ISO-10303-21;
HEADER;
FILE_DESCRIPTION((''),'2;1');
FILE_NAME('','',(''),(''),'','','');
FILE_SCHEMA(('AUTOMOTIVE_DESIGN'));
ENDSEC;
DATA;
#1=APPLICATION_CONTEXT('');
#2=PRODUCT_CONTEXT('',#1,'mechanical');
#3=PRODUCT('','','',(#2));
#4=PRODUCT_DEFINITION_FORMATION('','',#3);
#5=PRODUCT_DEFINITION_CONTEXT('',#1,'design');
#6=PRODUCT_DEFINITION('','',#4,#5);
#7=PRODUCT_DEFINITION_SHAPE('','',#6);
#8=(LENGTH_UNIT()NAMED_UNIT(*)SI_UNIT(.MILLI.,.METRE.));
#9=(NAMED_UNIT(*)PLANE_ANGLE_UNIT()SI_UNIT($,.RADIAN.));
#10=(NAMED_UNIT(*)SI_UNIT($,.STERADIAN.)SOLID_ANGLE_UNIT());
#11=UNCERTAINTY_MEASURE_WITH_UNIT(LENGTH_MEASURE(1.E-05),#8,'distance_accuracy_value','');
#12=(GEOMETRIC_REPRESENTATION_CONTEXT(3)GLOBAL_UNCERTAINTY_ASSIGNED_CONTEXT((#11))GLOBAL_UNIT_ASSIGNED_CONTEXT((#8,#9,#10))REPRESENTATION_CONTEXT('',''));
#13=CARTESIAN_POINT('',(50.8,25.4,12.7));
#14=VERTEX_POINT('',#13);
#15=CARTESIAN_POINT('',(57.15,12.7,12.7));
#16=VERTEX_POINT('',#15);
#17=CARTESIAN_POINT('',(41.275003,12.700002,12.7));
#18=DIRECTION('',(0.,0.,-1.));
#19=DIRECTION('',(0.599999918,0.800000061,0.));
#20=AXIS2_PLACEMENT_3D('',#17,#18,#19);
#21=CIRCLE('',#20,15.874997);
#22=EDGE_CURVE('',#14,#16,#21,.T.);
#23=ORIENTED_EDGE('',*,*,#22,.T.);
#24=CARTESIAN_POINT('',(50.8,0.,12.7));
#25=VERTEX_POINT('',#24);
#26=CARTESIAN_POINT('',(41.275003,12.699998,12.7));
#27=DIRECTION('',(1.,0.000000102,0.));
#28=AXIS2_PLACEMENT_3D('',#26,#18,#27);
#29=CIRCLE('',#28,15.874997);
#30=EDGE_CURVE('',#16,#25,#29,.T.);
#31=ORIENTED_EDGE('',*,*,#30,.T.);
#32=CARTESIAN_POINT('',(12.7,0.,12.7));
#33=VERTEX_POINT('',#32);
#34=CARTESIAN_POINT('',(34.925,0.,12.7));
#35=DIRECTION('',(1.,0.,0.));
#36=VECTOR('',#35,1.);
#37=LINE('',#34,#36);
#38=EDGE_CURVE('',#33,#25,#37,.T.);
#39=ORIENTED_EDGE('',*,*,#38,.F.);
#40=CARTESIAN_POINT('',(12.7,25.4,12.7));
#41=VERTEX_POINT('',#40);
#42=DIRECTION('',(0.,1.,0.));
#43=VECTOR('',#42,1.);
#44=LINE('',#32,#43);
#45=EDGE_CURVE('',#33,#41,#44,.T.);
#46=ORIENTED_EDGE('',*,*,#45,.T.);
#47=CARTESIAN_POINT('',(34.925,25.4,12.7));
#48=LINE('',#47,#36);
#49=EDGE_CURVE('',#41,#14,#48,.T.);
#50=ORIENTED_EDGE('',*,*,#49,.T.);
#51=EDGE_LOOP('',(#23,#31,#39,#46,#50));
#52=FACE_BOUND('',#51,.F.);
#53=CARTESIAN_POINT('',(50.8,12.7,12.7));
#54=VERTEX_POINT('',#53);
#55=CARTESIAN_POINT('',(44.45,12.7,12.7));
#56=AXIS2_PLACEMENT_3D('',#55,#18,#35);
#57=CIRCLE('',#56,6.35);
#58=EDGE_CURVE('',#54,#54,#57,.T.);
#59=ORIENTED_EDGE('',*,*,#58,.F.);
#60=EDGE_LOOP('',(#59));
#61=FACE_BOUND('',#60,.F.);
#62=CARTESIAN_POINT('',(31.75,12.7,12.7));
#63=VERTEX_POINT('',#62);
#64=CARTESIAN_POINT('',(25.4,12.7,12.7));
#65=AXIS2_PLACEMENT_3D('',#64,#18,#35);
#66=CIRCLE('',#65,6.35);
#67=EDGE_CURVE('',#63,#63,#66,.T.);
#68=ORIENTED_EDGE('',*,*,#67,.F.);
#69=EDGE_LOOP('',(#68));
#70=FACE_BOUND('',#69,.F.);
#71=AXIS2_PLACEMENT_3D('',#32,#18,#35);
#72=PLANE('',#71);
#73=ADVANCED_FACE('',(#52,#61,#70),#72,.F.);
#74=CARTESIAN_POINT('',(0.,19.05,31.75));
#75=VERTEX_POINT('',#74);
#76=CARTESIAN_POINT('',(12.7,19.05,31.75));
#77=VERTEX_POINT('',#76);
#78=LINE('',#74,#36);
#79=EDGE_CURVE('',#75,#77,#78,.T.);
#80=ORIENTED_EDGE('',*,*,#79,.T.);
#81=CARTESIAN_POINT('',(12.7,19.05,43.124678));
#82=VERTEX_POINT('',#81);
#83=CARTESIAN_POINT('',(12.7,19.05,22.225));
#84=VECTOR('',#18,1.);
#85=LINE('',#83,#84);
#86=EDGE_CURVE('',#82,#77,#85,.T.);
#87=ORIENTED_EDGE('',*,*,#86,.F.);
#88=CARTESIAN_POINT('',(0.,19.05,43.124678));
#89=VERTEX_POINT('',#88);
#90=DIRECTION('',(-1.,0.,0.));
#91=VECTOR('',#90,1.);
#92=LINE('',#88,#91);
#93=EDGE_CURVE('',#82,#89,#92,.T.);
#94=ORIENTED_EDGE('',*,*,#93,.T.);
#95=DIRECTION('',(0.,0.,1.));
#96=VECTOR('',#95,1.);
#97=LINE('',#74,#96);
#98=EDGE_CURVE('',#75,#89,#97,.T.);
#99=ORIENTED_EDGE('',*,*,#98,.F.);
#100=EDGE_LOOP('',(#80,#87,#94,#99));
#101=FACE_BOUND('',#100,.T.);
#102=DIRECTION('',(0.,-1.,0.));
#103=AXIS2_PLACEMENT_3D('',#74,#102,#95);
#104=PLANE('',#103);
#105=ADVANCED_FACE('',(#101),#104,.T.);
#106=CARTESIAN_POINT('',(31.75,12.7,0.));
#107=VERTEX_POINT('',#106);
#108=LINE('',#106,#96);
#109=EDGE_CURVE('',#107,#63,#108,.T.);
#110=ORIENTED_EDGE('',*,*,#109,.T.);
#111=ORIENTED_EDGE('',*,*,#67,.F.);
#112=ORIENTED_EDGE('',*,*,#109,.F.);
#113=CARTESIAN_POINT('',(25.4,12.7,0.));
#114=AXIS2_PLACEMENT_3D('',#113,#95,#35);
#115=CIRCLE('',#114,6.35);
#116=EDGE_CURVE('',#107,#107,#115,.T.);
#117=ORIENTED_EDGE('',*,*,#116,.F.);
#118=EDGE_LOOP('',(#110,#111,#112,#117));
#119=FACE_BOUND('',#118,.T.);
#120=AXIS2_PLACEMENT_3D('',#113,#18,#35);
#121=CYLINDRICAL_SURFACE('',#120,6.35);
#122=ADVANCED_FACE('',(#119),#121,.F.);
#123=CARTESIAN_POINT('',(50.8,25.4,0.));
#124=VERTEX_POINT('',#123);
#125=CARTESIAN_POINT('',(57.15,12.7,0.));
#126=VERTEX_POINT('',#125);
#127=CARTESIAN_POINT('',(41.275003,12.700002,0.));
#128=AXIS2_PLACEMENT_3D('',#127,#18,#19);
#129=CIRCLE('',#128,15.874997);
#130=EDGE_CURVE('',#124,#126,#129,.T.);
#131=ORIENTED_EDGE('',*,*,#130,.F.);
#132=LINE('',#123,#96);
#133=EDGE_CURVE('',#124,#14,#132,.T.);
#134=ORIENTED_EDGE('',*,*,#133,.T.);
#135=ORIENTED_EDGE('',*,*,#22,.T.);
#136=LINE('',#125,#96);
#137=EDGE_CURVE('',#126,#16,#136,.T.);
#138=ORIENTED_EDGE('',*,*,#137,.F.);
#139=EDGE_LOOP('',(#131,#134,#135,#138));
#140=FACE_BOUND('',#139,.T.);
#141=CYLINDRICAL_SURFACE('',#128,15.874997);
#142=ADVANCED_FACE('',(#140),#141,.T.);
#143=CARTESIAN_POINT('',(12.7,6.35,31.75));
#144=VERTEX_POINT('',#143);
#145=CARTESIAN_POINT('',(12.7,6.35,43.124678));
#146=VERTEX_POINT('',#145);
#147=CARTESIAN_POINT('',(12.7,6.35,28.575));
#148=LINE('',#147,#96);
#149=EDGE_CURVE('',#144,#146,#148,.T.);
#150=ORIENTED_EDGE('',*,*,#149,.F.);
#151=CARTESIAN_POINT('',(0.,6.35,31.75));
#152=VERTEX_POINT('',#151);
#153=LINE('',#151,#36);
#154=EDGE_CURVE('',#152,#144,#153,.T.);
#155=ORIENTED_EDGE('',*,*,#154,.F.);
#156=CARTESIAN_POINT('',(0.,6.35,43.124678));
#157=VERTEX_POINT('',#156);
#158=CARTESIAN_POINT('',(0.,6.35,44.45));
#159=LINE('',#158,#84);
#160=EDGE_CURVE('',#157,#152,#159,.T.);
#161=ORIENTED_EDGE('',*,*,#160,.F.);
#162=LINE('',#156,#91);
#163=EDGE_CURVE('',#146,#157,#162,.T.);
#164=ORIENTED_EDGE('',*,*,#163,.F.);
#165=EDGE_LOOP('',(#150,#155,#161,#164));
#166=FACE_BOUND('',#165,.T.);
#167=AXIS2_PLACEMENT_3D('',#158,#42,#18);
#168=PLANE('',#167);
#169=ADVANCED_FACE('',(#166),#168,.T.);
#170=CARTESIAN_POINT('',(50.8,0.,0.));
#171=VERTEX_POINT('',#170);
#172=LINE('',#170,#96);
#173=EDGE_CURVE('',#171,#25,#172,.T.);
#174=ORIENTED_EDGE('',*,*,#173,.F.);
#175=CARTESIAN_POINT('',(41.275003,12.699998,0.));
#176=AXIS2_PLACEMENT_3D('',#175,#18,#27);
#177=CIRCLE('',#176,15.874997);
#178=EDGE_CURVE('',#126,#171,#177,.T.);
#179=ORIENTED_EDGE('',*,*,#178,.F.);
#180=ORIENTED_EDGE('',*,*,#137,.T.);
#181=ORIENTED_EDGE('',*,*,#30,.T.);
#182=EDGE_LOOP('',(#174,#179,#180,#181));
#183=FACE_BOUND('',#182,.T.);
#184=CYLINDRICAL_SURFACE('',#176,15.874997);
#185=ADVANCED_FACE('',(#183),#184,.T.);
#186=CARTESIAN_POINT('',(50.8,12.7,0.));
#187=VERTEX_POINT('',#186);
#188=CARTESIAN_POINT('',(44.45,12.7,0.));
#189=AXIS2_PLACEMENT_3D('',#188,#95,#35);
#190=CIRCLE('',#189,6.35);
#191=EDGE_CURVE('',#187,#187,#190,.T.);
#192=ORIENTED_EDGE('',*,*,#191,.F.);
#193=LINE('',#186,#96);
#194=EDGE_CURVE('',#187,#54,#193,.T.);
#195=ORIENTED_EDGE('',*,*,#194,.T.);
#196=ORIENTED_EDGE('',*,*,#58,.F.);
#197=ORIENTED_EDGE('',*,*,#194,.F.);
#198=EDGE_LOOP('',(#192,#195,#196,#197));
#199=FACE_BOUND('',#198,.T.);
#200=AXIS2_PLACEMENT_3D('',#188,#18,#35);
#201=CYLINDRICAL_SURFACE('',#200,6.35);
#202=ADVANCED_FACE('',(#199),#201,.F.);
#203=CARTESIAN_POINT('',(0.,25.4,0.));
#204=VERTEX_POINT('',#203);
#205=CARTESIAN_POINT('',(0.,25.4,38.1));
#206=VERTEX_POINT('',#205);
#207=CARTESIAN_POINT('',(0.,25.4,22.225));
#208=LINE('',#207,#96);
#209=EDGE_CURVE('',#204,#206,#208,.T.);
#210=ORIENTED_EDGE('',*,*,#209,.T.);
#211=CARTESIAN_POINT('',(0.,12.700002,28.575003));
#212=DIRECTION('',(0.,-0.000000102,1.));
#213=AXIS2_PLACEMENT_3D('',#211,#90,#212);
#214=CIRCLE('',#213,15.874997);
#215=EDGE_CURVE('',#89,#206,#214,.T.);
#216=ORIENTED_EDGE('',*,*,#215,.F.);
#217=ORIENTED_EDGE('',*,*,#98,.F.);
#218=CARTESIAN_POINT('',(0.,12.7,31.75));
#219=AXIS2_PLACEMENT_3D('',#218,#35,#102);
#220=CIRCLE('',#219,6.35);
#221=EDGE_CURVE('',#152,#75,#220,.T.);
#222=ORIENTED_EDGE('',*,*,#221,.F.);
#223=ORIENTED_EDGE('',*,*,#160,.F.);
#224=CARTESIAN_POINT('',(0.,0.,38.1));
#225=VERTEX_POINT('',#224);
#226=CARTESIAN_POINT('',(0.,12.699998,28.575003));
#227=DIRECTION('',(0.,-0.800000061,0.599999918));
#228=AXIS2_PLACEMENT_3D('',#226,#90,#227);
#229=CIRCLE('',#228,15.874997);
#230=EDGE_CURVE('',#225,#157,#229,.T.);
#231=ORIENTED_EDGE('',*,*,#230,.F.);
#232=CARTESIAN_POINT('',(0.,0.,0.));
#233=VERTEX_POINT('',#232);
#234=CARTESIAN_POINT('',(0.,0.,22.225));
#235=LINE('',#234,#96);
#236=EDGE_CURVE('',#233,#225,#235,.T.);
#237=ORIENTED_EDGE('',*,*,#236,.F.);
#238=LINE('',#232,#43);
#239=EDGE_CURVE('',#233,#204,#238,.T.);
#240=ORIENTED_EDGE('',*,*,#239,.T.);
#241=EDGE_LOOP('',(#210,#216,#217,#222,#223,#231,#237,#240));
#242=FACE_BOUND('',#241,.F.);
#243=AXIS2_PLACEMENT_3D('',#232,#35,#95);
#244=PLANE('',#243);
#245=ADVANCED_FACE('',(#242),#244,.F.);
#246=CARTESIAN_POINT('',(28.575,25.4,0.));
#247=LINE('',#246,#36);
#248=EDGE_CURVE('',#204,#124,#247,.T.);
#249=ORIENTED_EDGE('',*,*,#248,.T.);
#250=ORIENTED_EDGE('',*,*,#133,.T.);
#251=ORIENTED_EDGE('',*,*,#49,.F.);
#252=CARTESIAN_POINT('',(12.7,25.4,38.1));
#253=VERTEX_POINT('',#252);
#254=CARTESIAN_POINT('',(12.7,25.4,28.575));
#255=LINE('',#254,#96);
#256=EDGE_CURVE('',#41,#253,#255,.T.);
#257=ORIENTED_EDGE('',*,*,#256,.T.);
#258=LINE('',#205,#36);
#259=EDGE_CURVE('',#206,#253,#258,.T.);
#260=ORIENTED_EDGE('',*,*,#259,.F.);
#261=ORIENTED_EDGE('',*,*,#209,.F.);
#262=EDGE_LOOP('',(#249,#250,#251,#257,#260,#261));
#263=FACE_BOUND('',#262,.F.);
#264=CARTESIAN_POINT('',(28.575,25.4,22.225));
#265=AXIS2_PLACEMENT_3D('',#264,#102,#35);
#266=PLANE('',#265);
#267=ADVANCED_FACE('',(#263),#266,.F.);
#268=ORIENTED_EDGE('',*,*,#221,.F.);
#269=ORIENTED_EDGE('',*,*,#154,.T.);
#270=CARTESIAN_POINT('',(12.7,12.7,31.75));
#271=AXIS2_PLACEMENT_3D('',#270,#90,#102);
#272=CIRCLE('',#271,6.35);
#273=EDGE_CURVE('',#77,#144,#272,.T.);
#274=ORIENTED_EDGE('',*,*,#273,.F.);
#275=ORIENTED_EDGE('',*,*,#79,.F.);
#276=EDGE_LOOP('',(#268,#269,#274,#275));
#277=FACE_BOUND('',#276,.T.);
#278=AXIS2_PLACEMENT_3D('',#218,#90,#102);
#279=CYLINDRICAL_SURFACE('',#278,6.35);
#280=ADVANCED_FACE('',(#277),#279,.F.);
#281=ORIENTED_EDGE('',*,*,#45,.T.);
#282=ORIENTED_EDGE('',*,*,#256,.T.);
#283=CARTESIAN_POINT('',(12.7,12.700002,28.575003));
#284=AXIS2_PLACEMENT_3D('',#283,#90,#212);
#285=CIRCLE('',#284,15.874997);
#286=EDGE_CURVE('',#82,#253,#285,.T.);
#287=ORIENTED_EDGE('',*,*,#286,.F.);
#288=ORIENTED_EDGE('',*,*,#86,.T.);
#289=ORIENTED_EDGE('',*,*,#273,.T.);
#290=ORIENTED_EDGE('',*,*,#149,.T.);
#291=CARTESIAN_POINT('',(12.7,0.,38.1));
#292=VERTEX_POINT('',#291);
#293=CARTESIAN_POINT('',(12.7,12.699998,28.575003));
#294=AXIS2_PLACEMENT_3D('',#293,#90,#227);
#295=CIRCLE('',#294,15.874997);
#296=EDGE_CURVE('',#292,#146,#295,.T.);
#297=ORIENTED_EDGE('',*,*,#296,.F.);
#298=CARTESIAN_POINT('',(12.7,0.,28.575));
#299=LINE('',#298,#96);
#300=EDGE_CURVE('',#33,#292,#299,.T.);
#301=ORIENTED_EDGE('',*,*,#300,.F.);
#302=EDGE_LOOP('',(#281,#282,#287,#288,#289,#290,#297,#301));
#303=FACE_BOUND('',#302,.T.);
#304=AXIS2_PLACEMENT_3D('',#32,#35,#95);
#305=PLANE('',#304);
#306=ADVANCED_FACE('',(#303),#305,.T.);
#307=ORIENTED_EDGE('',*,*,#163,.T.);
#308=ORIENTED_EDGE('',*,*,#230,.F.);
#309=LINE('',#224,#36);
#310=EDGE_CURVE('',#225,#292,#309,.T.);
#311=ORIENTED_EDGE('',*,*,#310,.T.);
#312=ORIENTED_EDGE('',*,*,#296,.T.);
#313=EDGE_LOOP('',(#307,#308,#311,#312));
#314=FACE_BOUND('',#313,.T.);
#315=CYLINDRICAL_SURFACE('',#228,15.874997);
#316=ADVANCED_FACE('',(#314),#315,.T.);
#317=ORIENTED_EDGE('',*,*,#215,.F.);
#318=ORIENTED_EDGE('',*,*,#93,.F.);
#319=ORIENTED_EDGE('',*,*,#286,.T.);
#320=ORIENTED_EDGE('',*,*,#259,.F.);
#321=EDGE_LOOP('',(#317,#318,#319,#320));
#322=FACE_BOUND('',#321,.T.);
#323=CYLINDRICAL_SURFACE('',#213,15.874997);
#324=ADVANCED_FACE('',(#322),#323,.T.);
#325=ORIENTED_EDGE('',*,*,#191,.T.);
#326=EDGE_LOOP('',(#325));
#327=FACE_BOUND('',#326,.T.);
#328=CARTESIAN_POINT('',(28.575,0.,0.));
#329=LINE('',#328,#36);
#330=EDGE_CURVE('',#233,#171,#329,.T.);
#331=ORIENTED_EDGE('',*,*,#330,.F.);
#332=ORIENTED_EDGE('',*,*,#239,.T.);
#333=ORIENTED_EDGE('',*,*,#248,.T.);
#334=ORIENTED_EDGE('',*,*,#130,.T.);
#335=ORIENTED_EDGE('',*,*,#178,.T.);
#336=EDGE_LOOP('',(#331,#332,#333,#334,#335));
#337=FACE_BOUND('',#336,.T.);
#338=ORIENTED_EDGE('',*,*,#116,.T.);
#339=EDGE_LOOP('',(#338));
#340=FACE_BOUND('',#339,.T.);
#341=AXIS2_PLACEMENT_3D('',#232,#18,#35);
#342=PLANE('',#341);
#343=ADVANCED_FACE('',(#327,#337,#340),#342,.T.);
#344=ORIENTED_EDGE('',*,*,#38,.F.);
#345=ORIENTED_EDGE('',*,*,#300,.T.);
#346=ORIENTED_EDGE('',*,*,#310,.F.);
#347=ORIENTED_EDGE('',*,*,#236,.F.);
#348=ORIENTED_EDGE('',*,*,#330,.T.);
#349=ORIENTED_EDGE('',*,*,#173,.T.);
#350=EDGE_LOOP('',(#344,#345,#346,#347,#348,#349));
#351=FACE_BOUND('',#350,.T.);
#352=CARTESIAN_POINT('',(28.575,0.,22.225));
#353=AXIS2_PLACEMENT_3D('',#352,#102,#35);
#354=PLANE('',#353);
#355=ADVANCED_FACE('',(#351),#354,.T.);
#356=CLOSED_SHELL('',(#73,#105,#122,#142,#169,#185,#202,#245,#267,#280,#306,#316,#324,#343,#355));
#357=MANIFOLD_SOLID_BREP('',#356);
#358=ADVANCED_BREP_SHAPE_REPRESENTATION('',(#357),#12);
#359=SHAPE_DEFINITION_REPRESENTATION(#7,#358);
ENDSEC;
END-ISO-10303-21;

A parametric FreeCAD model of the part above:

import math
import FreeCAD as App
import Part
import Sketcher
from FreeCAD import Vector
Q = App.Units.Quantity


def add_polygon(sketch, points):
    """Adds a closed chain of lines whose ends are joined by coincident constraints."""
    first, n = sketch.GeometryCount, len(points)
    for a, b in zip(points, points[1:] + points[:1]):
        sketch.addGeometry(Part.LineSegment(App.Vector(*a, 0), App.Vector(*b, 0)), False)
    for i in range(n):
        sketch.addConstraint(Sketcher.Constraint("Coincident", first + i, 2, first + (i + 1) % n, 1))

doc = App.newDocument("Part")
params = doc.addObject("Spreadsheet::Sheet", "Params")
for row, (alias, value) in enumerate([
    ("sketch1_width", "2.25 in"),
    ("sketch1_height", "1.75 in"),
    ("pad1_length", "1 in"),
    ("sketch2_width", "1.75 in"),
    ("sketch2_height", "1.25 in"),
    ("pocket1_length", "1 in"),
    ("sketch3_height", "0.5 in"),
    ("sketch3_radius", "0.6249999 in"),
    ("pocket2_length", "1 in"),
    ("sketch4_diameter", "0.5 in"),
    ("pocket3_length", "1 in"),
    ("sketch5_radius", "0.25 in"),
    ("pocket4_length", "1 in"),
    ("sketch6_width", "0.5 in"),
    ("sketch6_radius", "0.6249999 in"),
    ("pocket5_length", "1 in"),
], start=1):
    params.set(f"A{row}", alias)
    params.set(f"B{row}", "=" + value)
    params.setAlias(f"B{row}", alias)

body = doc.addObject("PartDesign::Body", "Body")

# Sketch on XZ plane
sketch1 = body.newObject("Sketcher::SketchObject", "Sketch")
sketch1.AttachmentSupport = (doc.getObject("XZ_Plane"), [""])
sketch1.MapMode = "FlatFace"
add_polygon(sketch1, [(0, 44.45), (0, 0), (57.15, 0), (57.15, 44.45)])  # lines 0-3
sketch1.addConstraint([
    Sketcher.Constraint("Vertical", 0),
    Sketcher.Constraint("Horizontal", 1),
    Sketcher.Constraint("Vertical", 2),
    Sketcher.Constraint("Horizontal", 3),
    Sketcher.Constraint("Coincident", 0, 2, -1, 1),
    Sketcher.Constraint("DistanceX", 1, 1, 1, 2, Q("2.25 in")),
    Sketcher.Constraint("DistanceY", 0, 2, 0, 1, Q("1.75 in")),
])
sketch1.setExpression("Constraints[9]", "Params.sketch1_width")
sketch1.setExpression("Constraints[10]", "Params.sketch1_height")
pad1 = body.newObject("PartDesign::Pad", "Pad")
pad1.Profile = sketch1
pad1.setExpression("Length", "Params.pad1_length")
pad1.Reversed = True

# Sketch on XZ plane
sketch2 = body.newObject("Sketcher::SketchObject", "Sketch001")
sketch2.AttachmentSupport = (doc.getObject("XZ_Plane"), [""])
sketch2.MapMode = "FlatFace"
add_polygon(sketch2, [(12.7, 44.45), (12.7, 12.7), (57.15, 12.7), (57.15, 44.45)])  # lines 0-3
sketch2.addConstraint([
    Sketcher.Constraint("Vertical", 0),
    Sketcher.Constraint("Horizontal", 1),
    Sketcher.Constraint("Vertical", 2),
    Sketcher.Constraint("Horizontal", 3),
    Sketcher.Constraint("DistanceX", 1, 1, 1, 2, Q("1.75 in")),
    Sketcher.Constraint("DistanceY", 0, 2, 0, 1, Q("1.25 in")),
    Sketcher.Constraint("DistanceX", -1, 1, 0, 2, Q("0.5 in")),
    Sketcher.Constraint("DistanceY", -1, 1, 0, 2, Q("0.5 in")),
])
sketch2.setExpression("Constraints[8]", "Params.sketch2_width")
sketch2.setExpression("Constraints[9]", "Params.sketch2_height")
pocket1 = body.newObject("PartDesign::Pocket", "Pocket")
pocket1.Profile = sketch2
pocket1.setExpression("Length", "Params.pocket1_length")

# Sketch on XY plane
sketch3 = body.newObject("Sketcher::SketchObject", "Sketch002")
sketch3.AttachmentSupport = (doc.getObject("XY_Plane"), [""])
sketch3.MapMode = "FlatFace"
sketch3.addGeometry([
    Part.ArcOfCircle(Part.Circle(Vector(41.275003, 12.700002, 0), Vector(0, 0, 1), 15.874997), math.radians(-0.000006), math.radians(53.130108)),  # 0
    Part.LineSegment(Vector(57.15, 12.7, 0), Vector(57.15, 25.4, 0)),  # 1
    Part.LineSegment(Vector(57.15, 25.4, 0), Vector(50.8, 25.4, 0)),  # 2
    Part.ArcOfCircle(Part.Circle(Vector(41.275003, 12.699998, 0), Vector(0, 0, 1), 15.874997), math.radians(-53.130108), math.radians(0.000006)),  # 3
    Part.LineSegment(Vector(50.8, 0, 0), Vector(57.15, 0, 0)),  # 4
    Part.LineSegment(Vector(57.15, 0, 0), Vector(57.15, 12.7, 0)),  # 5
], False)
sketch3.addConstraint([
    Sketcher.Constraint("Tangent", 0, 1, 1, 1),
    Sketcher.Constraint("Coincident", 1, 2, 2, 1),
    Sketcher.Constraint("Coincident", 2, 2, 0, 2),
    Sketcher.Constraint("Coincident", 3, 1, 4, 1),
    Sketcher.Constraint("Coincident", 4, 2, 5, 1),
    Sketcher.Constraint("Tangent", 5, 2, 3, 2),
    Sketcher.Constraint("Vertical", 1),
    Sketcher.Constraint("Horizontal", 2),
    Sketcher.Constraint("Horizontal", 4),
    Sketcher.Constraint("Vertical", 5),
    Sketcher.Constraint("Coincident", 3, 3, 0, 3),
    Sketcher.Constraint("Equal", 0, 3),
    Sketcher.Constraint("PointOnObject", 3, 1, -1),
    Sketcher.Constraint("Vertical", 2, 2, 3, 1),
    Sketcher.Constraint("DistanceY", 1, 1, 1, 2, Q("0.5 in")),
    Sketcher.Constraint("DistanceX", -1, 1, 2, 2, Q("2 in")),
    Sketcher.Constraint("Radius", 0, Q("0.6249999 in")),
])
sketch3.setExpression("Constraints[14]", "Params.sketch3_height")
sketch3.setExpression("Constraints[16]", "Params.sketch3_radius")
pocket2 = body.newObject("PartDesign::Pocket", "Pocket001")
pocket2.Profile = sketch3
pocket2.setExpression("Length", "Params.pocket2_length")
pocket2.Reversed = True

# Sketch on XY plane
sketch4 = body.newObject("Sketcher::SketchObject", "Sketch003")
sketch4.AttachmentSupport = (doc.getObject("XY_Plane"), [""])
sketch4.MapMode = "FlatFace"
sketch4.addGeometry([
    Part.Circle(Vector(25.4, 12.7, 0), Vector(0, 0, 1), 6.35),
    Part.Circle(Vector(44.45, 12.7, 0), Vector(0, 0, 1), 6.35),
], False)
sketch4.addConstraint([
    Sketcher.Constraint("Equal", 0, 1),
    Sketcher.Constraint("Horizontal", 0, 3, 1, 3),
    Sketcher.Constraint("Diameter", 0, Q("0.5 in")),
    Sketcher.Constraint("DistanceX", -1, 1, 0, 3, Q("1 in")),
    Sketcher.Constraint("DistanceY", -1, 1, 0, 3, Q("0.5 in")),
    Sketcher.Constraint("DistanceX", -1, 1, 1, 3, Q("1.75 in")),
])
sketch4.setExpression("Constraints[2]", "Params.sketch4_diameter")
pocket3 = body.newObject("PartDesign::Pocket", "Pocket002")
pocket3.Profile = sketch4
pocket3.setExpression("Length", "Params.pocket3_length")
pocket3.Reversed = True

# Sketch on YZ plane
sketch5 = body.newObject("Sketcher::SketchObject", "Sketch004")
sketch5.AttachmentSupport = (doc.getObject("YZ_Plane"), [""])
sketch5.MapMode = "FlatFace"
sketch5.addGeometry([
    Part.LineSegment(Vector(19.05, 44.45, 0), Vector(6.35, 44.45, 0)),
    Part.LineSegment(Vector(6.35, 44.45, 0), Vector(6.35, 31.75, 0)),
    Part.ArcOfCircle(Part.Circle(Vector(12.7, 31.75, 0), Vector(0, 0, 1), 6.35), math.radians(180), math.radians(360)),
    Part.LineSegment(Vector(19.05, 31.75, 0), Vector(19.05, 44.45, 0)),
], False)
sketch5.addConstraint([
    Sketcher.Constraint("Coincident", 0, 2, 1, 1),
    Sketcher.Constraint("Tangent", 1, 2, 2, 1),
    Sketcher.Constraint("Tangent", 2, 2, 3, 1),
    Sketcher.Constraint("Coincident", 3, 2, 0, 1),
    Sketcher.Constraint("Horizontal", 0),
    Sketcher.Constraint("Vertical", 1),
    Sketcher.Constraint("Vertical", 3),
    Sketcher.Constraint("Equal", 0, 1),
    Sketcher.Constraint("Radius", 2, Q("0.25 in")),
    Sketcher.Constraint("DistanceX", -1, 1, 2, 3, Q("0.5 in")),
    Sketcher.Constraint("DistanceY", -1, 1, 2, 3, Q("1.25 in")),
])
sketch5.setExpression("Constraints[8]", "Params.sketch5_radius")
pocket4 = body.newObject("PartDesign::Pocket", "Pocket003")
pocket4.Profile = sketch5
pocket4.setExpression("Length", "Params.pocket4_length")
pocket4.Reversed = True

# Sketch on YZ plane
sketch6 = body.newObject("Sketcher::SketchObject", "Sketch005")
sketch6.AttachmentSupport = (doc.getObject("YZ_Plane"), [""])
sketch6.MapMode = "FlatFace"
sketch6.addGeometry([
    Part.ArcOfCircle(Part.Circle(Vector(12.699998, 28.575003, 0), Vector(0, 0, 1), 15.874997), math.radians(89.999994), math.radians(143.130108)),  # 0
    Part.LineSegment(Vector(12.7, 44.45, 0), Vector(0, 44.45, 0)),  # 1
    Part.LineSegment(Vector(0, 44.45, 0), Vector(0, 38.1, 0)),  # 2
    Part.ArcOfCircle(Part.Circle(Vector(12.700002, 28.575003, 0), Vector(0, 0, 1), 15.874997), math.radians(36.869892), math.radians(90.000006)),  # 3
    Part.LineSegment(Vector(25.4, 38.1, 0), Vector(25.4, 44.45, 0)),  # 4
    Part.LineSegment(Vector(25.4, 44.45, 0), Vector(12.7, 44.45, 0)),  # 5
], False)
sketch6.addConstraint([
    Sketcher.Constraint("Tangent", 0, 1, 1, 1),
    Sketcher.Constraint("Coincident", 1, 2, 2, 1),
    Sketcher.Constraint("Coincident", 2, 2, 0, 2),
    Sketcher.Constraint("Coincident", 3, 1, 4, 1),
    Sketcher.Constraint("Coincident", 4, 2, 5, 1),
    Sketcher.Constraint("Tangent", 5, 2, 3, 2),
    Sketcher.Constraint("Horizontal", 1),
    Sketcher.Constraint("Vertical", 2),
    Sketcher.Constraint("Vertical", 4),
    Sketcher.Constraint("Horizontal", 5),
    Sketcher.Constraint("Coincident", 3, 3, 0, 3),
    Sketcher.Constraint("Equal", 0, 3),
    Sketcher.Constraint("PointOnObject", 1, 2, -2),
    Sketcher.Constraint("Horizontal", 2, 2, 3, 1),
    Sketcher.Constraint("DistanceX", 1, 2, 1, 1, Q("0.5 in")),
    Sketcher.Constraint("Radius", 0, Q("0.6249999 in")),
    Sketcher.Constraint("DistanceY", -1, 1, 2, 2, Q("1.5 in")),
])
sketch6.setExpression("Constraints[14]", "Params.sketch6_width")
sketch6.setExpression("Constraints[15]", "Params.sketch6_radius")
pocket5 = body.newObject("PartDesign::Pocket", "Pocket004")
pocket5.Profile = sketch6
pocket5.setExpression("Length", "Params.pocket5_length")
pocket5.Reversed = True

doc.recompute()
